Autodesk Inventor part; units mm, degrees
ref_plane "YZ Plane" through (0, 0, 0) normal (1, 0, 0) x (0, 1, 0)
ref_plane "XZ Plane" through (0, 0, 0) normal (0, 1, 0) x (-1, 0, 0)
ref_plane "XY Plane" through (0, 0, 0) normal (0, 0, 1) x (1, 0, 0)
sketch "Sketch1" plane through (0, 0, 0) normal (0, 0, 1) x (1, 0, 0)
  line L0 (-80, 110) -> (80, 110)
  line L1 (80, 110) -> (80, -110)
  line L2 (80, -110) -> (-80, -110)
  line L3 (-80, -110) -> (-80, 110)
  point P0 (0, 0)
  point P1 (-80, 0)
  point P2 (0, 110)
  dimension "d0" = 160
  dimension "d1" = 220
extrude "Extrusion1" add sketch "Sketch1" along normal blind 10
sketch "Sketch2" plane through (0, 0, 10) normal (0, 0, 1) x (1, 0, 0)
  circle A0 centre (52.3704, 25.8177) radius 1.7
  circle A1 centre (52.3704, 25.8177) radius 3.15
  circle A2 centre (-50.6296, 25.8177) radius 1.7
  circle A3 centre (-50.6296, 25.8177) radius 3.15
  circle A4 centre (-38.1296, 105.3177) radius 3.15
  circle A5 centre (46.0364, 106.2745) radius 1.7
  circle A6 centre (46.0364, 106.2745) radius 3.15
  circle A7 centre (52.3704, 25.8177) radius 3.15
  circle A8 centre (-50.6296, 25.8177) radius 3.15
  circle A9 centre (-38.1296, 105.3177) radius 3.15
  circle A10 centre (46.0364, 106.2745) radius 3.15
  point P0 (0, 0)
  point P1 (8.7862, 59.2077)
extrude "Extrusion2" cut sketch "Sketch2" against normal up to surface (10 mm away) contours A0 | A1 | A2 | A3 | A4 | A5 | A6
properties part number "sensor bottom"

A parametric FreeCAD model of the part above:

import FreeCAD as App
import Part
import Sketcher
from FreeCAD import Vector

doc = App.newDocument("Part")
body = doc.addObject("PartDesign::Body", "Body")

# Sketch on XY plane
sketch1 = body.newObject("Sketcher::SketchObject", "Sketch")
sketch1.AttachmentSupport = (doc.getObject("XY_Plane"), [""])
sketch1.MapMode = "FlatFace"
sketch1.addGeometry(Part.LineSegment(Vector(80, 110, 0), Vector(-80, 110, 0)), False)
sketch1.addGeometry(Part.LineSegment(Vector(-80, 110, 0), Vector(-80, -110, 0)), False)
sketch1.addGeometry(Part.LineSegment(Vector(-80, -110, 0), Vector(80, -110, 0)), False)
sketch1.addGeometry(Part.LineSegment(Vector(80, -110, 0), Vector(80, 110, 0)), False)
sketch1.addConstraint(Sketcher.Constraint("Coincident", 0, 2, 1, 1))
sketch1.addConstraint(Sketcher.Constraint("Coincident", 1, 2, 2, 1))
sketch1.addConstraint(Sketcher.Constraint("Coincident", 2, 2, 3, 1))
sketch1.addConstraint(Sketcher.Constraint("Coincident", 3, 2, 0, 1))
sketch1.addConstraint(Sketcher.Constraint("Horizontal", 0))
sketch1.addConstraint(Sketcher.Constraint("Vertical", 1))
sketch1.addConstraint(Sketcher.Constraint("Horizontal", 2))
sketch1.addConstraint(Sketcher.Constraint("Vertical", 3))
sketch1.addConstraint(Sketcher.Constraint("Symmetric", 0, 2, 2, 2, -1, 1))
sketch1.addConstraint(Sketcher.Constraint("DistanceX", 0, 2, 0, 1, 160.0))
sketch1.addConstraint(Sketcher.Constraint("DistanceY", 1, 2, 1, 1, 220.0))
pad1 = body.newObject("PartDesign::Pad", "Pad")
pad1.Profile = sketch1
pad1.Length = 10

# Sketch on XY plane
sketch2 = body.newObject("Sketcher::SketchObject", "Sketch001")
sketch2.AttachmentSupport = (doc.getObject("XY_Plane"), [""])
sketch2.MapMode = "FlatFace"
sketch2.AttachmentOffset = App.Placement(Vector(0, 0, 10), App.Rotation())
sketch2.addGeometry(Part.Circle(Vector(52.4, 25.8, 0), Vector(0, 0, 1), 3.1), False)
sketch2.addGeometry(Part.Circle(Vector(-50.6, 25.8, 0), Vector(0, 0, 1), 3.1), False)
sketch2.addGeometry(Part.Circle(Vector(-38.1, 105.3, 0), Vector(0, 0, 1), 3.1), False)
sketch2.addGeometry(Part.Circle(Vector(46, 106.3, 0), Vector(0, 0, 1), 3.1), False)
sketch2.addConstraint(Sketcher.Constraint("Equal", 0, 1))
sketch2.addConstraint(Sketcher.Constraint("Equal", 1, 2))
sketch2.addConstraint(Sketcher.Constraint("Equal", 2, 3))
sketch2.addConstraint(Sketcher.Constraint("Horizontal", 0, 3, 1, 3))
sketch2.addConstraint(Sketcher.Constraint("Diameter", 0, 6.3))
sketch2.addConstraint(Sketcher.Constraint("DistanceX", 1, 3, 0, 3, 103.0))
sketch2.addConstraint(Sketcher.Constraint("DistanceX", 1, 3, 2, 3, 12.5))
sketch2.addConstraint(Sketcher.Constraint("DistanceY", 1, 3, 2, 3, 79.5))
sketch2.addConstraint(Sketcher.Constraint("DistanceX", 3, 3, 0, 3, 6.334))
sketch2.addConstraint(Sketcher.Constraint("DistanceX", -1, 1, 0, 3, 52.3704))
sketch2.addConstraint(Sketcher.Constraint("DistanceY", -1, 1, 0, 3, 25.8177))
sketch2.addConstraint(Sketcher.Constraint("DistanceY", -1, 1, 3, 3, 106.2745))
pocket1 = body.newObject("PartDesign::Pocket", "Pocket")
pocket1.Profile = sketch2
pocket1.Length = 10

doc.recompute()
